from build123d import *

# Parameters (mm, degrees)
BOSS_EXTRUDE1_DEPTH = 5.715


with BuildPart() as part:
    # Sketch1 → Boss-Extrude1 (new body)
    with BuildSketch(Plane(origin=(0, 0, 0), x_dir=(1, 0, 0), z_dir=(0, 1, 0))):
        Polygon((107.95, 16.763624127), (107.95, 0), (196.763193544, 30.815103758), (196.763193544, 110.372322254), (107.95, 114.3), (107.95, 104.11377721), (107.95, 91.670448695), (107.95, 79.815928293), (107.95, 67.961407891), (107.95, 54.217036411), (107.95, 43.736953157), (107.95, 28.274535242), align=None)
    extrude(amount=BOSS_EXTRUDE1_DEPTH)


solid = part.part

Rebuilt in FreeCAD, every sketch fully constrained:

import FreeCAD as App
import Part
import Sketcher
from FreeCAD import Vector
Q = App.Units.Quantity


def add_polygon(sketch, points):
    """Adds a closed chain of lines whose ends are joined by coincident constraints."""
    first, n = sketch.GeometryCount, len(points)
    for a, b in zip(points, points[1:] + points[:1]):
        sketch.addGeometry(Part.LineSegment(App.Vector(*a, 0), App.Vector(*b, 0)), False)
    for i in range(n):
        sketch.addConstraint(Sketcher.Constraint("Coincident", first + i, 2, first + (i + 1) % n, 1))

doc = App.newDocument("Part")
body = doc.addObject("PartDesign::Body", "Body")

# Sketch on XZ plane
sketch1 = doc.addObject("Sketcher::SketchObject", "Sketch")
body.addObject(sketch1)
sketch1.AttachmentSupport = (doc.XZ_Plane, [""])
sketch1.MapMode = "FlatFace"
add_polygon(sketch1, [(108, 0), (197, -31), (197, -110), (108, -114)])  # lines 0-3
sketch1.addConstraint([
    Sketcher.Constraint("Vertical", 1),
    Sketcher.Constraint("Vertical", 3),
    Sketcher.Constraint("PointOnObject", 3, 2, -1),
    Sketcher.Constraint("DistanceY", 3, 1, 3, 2, Q("4.5 in")),
    Sketcher.Constraint("Distance", 2, Q("3.5 in")),
    Sketcher.Constraint("DistanceX", -1, 1, 2, 2, Q("4.25 in")),
    Sketcher.Constraint("Distance", 0, 94.007202),
    Sketcher.Constraint("DistanceY", 1, 2, 1, 1, 79.557218),
])
pad1 = doc.addObject("PartDesign::Pad", "Pad")
body.addObject(pad1)
pad1.Profile = sketch1
pad1.Length = Q("0.225 in")
pad1.Reversed = True

doc.recompute()
